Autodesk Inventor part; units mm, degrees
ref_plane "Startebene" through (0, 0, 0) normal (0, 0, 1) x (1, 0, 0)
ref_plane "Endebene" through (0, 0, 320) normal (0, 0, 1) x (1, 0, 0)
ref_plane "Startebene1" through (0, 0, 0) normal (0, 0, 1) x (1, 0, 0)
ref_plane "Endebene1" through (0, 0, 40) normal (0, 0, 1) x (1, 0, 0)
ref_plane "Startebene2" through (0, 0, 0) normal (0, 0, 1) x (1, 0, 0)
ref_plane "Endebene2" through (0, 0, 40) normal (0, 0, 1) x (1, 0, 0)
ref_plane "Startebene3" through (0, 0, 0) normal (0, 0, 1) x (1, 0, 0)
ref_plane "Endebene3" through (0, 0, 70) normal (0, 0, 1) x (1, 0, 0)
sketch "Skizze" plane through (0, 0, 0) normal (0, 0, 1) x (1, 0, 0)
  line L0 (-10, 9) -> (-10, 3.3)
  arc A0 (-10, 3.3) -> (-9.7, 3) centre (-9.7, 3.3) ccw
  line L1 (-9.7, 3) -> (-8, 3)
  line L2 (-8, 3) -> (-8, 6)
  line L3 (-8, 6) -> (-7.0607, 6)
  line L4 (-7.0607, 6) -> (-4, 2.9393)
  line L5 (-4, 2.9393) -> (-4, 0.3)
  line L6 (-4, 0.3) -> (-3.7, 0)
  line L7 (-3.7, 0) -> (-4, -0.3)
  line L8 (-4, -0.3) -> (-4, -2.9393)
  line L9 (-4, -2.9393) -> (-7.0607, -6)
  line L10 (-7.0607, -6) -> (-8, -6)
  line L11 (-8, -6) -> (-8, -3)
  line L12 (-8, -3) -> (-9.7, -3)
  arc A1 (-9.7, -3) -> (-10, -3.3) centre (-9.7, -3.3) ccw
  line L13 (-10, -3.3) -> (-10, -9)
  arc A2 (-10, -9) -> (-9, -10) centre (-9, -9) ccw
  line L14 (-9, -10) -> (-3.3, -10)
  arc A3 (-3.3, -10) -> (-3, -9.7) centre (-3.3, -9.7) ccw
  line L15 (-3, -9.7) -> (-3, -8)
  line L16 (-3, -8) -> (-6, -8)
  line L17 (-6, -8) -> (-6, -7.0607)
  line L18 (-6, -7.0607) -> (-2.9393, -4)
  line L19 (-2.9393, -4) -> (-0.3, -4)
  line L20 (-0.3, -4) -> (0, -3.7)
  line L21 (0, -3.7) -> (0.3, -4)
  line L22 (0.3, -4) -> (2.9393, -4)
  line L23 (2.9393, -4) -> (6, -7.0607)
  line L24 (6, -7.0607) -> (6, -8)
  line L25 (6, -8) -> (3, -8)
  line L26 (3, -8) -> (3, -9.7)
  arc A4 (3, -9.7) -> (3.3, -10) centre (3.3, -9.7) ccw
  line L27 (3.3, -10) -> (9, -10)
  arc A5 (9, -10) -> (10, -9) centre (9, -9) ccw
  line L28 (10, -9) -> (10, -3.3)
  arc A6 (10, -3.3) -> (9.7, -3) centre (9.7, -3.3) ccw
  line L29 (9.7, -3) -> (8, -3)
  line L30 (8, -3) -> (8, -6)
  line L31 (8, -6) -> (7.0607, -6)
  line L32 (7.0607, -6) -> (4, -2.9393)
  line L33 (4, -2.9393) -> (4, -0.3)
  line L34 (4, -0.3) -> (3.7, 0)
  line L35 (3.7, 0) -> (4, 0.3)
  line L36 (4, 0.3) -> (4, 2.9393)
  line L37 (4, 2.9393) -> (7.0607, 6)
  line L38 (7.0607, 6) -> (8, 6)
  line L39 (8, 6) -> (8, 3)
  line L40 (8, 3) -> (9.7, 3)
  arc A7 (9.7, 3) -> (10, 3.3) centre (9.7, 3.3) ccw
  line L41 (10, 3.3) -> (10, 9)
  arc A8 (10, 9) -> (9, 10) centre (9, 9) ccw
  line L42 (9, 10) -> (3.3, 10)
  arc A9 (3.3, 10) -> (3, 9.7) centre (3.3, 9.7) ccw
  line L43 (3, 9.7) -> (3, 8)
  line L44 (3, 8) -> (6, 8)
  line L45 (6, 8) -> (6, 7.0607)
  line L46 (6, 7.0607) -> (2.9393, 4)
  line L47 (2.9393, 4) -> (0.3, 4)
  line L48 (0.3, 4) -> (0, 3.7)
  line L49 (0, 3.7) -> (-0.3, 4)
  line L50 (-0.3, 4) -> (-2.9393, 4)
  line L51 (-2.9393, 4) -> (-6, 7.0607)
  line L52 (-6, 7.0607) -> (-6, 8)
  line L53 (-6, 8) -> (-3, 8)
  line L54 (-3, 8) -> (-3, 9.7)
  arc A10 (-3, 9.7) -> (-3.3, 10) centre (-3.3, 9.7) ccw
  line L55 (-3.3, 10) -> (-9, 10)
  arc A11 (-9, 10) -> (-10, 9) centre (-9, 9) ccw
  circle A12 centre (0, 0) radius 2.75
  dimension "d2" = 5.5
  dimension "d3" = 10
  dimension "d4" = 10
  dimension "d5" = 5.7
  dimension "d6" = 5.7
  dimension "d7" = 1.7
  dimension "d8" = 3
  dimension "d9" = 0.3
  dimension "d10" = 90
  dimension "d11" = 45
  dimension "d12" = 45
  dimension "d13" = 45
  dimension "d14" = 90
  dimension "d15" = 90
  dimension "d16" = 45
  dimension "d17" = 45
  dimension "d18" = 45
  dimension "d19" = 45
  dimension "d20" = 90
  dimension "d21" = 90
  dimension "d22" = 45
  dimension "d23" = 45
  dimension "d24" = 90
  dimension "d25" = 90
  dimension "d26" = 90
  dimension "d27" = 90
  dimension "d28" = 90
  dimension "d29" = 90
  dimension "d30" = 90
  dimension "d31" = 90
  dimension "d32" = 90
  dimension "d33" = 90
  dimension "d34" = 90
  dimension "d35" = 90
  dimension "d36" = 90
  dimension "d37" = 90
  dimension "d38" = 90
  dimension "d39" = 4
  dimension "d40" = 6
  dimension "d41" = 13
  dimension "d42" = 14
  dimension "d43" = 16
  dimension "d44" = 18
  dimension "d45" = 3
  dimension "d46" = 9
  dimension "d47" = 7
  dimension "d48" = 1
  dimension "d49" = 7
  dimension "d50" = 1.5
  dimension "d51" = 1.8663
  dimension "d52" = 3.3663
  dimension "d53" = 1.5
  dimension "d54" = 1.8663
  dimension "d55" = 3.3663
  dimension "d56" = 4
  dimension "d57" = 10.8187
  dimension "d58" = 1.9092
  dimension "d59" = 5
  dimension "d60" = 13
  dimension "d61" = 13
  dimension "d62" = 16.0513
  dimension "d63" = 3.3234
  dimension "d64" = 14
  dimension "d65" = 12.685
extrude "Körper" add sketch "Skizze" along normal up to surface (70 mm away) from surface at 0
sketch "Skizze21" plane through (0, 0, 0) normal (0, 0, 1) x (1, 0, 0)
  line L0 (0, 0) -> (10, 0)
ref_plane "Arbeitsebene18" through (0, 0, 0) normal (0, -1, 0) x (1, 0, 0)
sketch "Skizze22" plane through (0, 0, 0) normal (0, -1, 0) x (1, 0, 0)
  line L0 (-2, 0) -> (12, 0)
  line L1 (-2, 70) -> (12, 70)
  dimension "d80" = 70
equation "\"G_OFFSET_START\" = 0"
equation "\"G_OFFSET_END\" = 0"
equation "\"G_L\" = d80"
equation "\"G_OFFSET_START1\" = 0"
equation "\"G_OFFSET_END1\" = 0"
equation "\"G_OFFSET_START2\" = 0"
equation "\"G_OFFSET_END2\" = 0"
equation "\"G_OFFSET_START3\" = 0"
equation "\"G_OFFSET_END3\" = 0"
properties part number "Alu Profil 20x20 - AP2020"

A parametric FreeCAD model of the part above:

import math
import FreeCAD as App
import Part
import Sketcher

V = App.Vector

doc = App.newDocument("Part")
body = doc.addObject("PartDesign::Body", "Body")

# Sketch on XY plane
sketch1 = doc.addObject("Sketcher::SketchObject", "Sketch")
body.addObject(sketch1)
sketch1.AttachmentSupport = (doc.XY_Plane, [""])
sketch1.MapMode = "FlatFace"
sketch1.addGeometry([
    Part.ArcOfCircle(Part.Circle(V(-9, 9, 0), V(0, 0, 1), 1), math.radians(90), math.radians(180)),  # 0
    Part.LineSegment(V(-10, 9, 0), V(-10, 3.3, 0)),  # 1
    Part.ArcOfCircle(Part.Circle(V(-9.7, 3.3, 0), V(0, 0, 1), 0.3), math.radians(180), math.radians(270)),  # 2
    Part.LineSegment(V(-9.7, 3, 0), V(-8, 3, 0)),  # 3
    Part.LineSegment(V(-8, 3, 0), V(-8, 6, 0)),  # 4
    Part.LineSegment(V(-8, 6, 0), V(-7.06, 6, 0)),  # 5
    Part.LineSegment(V(-7.06, 6, 0), V(-4, 2.94, 0)),  # 6
    Part.LineSegment(V(-4, 2.94, 0), V(-4, 0.3, 0)),  # 7
    Part.LineSegment(V(-4, 0.3, 0), V(-3.7, 0, 0)),  # 8
    Part.LineSegment(V(-3.7, 0, 0), V(-4, -0.3, 0)),  # 9
    Part.LineSegment(V(-4, -0.3, 0), V(-4, -2.94, 0)),  # 10
    Part.LineSegment(V(-4, -2.94, 0), V(-7.06, -6, 0)),  # 11
    Part.LineSegment(V(-7.06, -6, 0), V(-8, -6, 0)),  # 12
    Part.LineSegment(V(-8, -6, 0), V(-8, -3, 0)),  # 13
    Part.LineSegment(V(-8, -3, 0), V(-9.7, -3, 0)),  # 14
    Part.ArcOfCircle(Part.Circle(V(-9.7, -3.3, 0), V(0, 0, 1), 0.3), math.radians(90), math.radians(180)),  # 15
    Part.LineSegment(V(-10, -3.3, 0), V(-10, -9, 0)),  # 16
    Part.ArcOfCircle(Part.Circle(V(-9, -9, 0), V(0, 0, 1), 1), math.radians(180), math.radians(270)),  # 17
    Part.LineSegment(V(-9, -10, 0), V(-3.3, -10, 0)),  # 18
    Part.ArcOfCircle(Part.Circle(V(-3.3, -9.7, 0), V(0, 0, 1), 0.3), math.radians(-90), math.radians(0)),  # 19
    Part.LineSegment(V(-3, -9.7, 0), V(-3, -8, 0)),  # 20
    Part.LineSegment(V(-3, -8, 0), V(-6, -8, 0)),  # 21
    Part.LineSegment(V(-6, -8, 0), V(-6, -7.06, 0)),  # 22
    Part.LineSegment(V(-6, -7.06, 0), V(-2.94, -4, 0)),  # 23
    Part.LineSegment(V(-2.94, -4, 0), V(-0.3, -4, 0)),  # 24
    Part.LineSegment(V(-0.3, -4, 0), V(0, -3.7, 0)),  # 25
    Part.LineSegment(V(0, -3.7, 0), V(0.3, -4, 0)),  # 26
    Part.LineSegment(V(0.3, -4, 0), V(2.94, -4, 0)),  # 27
    Part.LineSegment(V(2.94, -4, 0), V(6, -7.06, 0)),  # 28
    Part.LineSegment(V(6, -7.06, 0), V(6, -8, 0)),  # 29
    Part.LineSegment(V(6, -8, 0), V(3, -8, 0)),  # 30
    Part.LineSegment(V(3, -8, 0), V(3, -9.7, 0)),  # 31
    Part.ArcOfCircle(Part.Circle(V(3.3, -9.7, 0), V(0, 0, 1), 0.3), math.radians(180), math.radians(270)),  # 32
    Part.LineSegment(V(3.3, -10, 0), V(9, -10, 0)),  # 33
    Part.ArcOfCircle(Part.Circle(V(9, -9, 0), V(0, 0, 1), 1), math.radians(-90), math.radians(0)),  # 34
    Part.LineSegment(V(10, -9, 0), V(10, -3.3, 0)),  # 35
    Part.ArcOfCircle(Part.Circle(V(9.7, -3.3, 0), V(0, 0, 1), 0.3), math.radians(0), math.radians(90)),  # 36
    Part.LineSegment(V(9.7, -3, 0), V(8, -3, 0)),  # 37
    Part.LineSegment(V(8, -3, 0), V(8, -6, 0)),  # 38
    Part.LineSegment(V(8, -6, 0), V(7.06, -6, 0)),  # 39
    Part.LineSegment(V(7.06, -6, 0), V(4, -2.94, 0)),  # 40
    Part.LineSegment(V(4, -2.94, 0), V(4, -0.3, 0)),  # 41
    Part.LineSegment(V(4, -0.3, 0), V(3.7, 0, 0)),  # 42
    Part.LineSegment(V(3.7, 0, 0), V(4, 0.3, 0)),  # 43
    Part.LineSegment(V(4, 0.3, 0), V(4, 2.94, 0)),  # 44
    Part.LineSegment(V(4, 2.94, 0), V(7.06, 6, 0)),  # 45
    Part.LineSegment(V(7.06, 6, 0), V(8, 6, 0)),  # 46
    Part.LineSegment(V(8, 6, 0), V(8, 3, 0)),  # 47
    Part.LineSegment(V(8, 3, 0), V(9.7, 3, 0)),  # 48
    Part.ArcOfCircle(Part.Circle(V(9.7, 3.3, 0), V(0, 0, 1), 0.3), math.radians(-90), math.radians(0)),  # 49
    Part.LineSegment(V(10, 3.3, 0), V(10, 9, 0)),  # 50
    Part.ArcOfCircle(Part.Circle(V(9, 9, 0), V(0, 0, 1), 1), math.radians(0), math.radians(90)),  # 51
    Part.LineSegment(V(9, 10, 0), V(3.3, 10, 0)),  # 52
    Part.ArcOfCircle(Part.Circle(V(3.3, 9.7, 0), V(0, 0, 1), 0.3), math.radians(90), math.radians(180)),  # 53
    Part.LineSegment(V(3, 9.7, 0), V(3, 8, 0)),  # 54
    Part.LineSegment(V(3, 8, 0), V(6, 8, 0)),  # 55
    Part.LineSegment(V(6, 8, 0), V(6, 7.06, 0)),  # 56
    Part.LineSegment(V(6, 7.06, 0), V(2.94, 4, 0)),  # 57
    Part.LineSegment(V(2.94, 4, 0), V(0.3, 4, 0)),  # 58
    Part.LineSegment(V(0.3, 4, 0), V(0, 3.7, 0)),  # 59
    Part.LineSegment(V(0, 3.7, 0), V(-0.3, 4, 0)),  # 60
    Part.LineSegment(V(-0.3, 4, 0), V(-2.94, 4, 0)),  # 61
    Part.LineSegment(V(-2.94, 4, 0), V(-6, 7.06, 0)),  # 62
    Part.LineSegment(V(-6, 7.06, 0), V(-6, 8, 0)),  # 63
    Part.LineSegment(V(-6, 8, 0), V(-3, 8, 0)),  # 64
    Part.LineSegment(V(-3, 8, 0), V(-3, 9.7, 0)),  # 65
    Part.ArcOfCircle(Part.Circle(V(-3.3, 9.7, 0), V(0, 0, 1), 0.3), math.radians(0), math.radians(90)),  # 66
    Part.LineSegment(V(-3.3, 10, 0), V(-9, 10, 0)),  # 67
    Part.Circle(V(0, 0, 0), V(0, 0, 1), 2.75),  # 68
], False)
sketch1.addConstraint([
    Sketcher.Constraint("Tangent", 0, 2, 1, 1),
    Sketcher.Constraint("Tangent", 1, 2, 2, 1),
    Sketcher.Constraint("Tangent", 2, 2, 3, 1),
    Sketcher.Constraint("Coincident", 3, 2, 4, 1),
    Sketcher.Constraint("Coincident", 4, 2, 5, 1),
    Sketcher.Constraint("Coincident", 5, 2, 6, 1),
    Sketcher.Constraint("Coincident", 6, 2, 7, 1),
    Sketcher.Constraint("Coincident", 7, 2, 8, 1),
    Sketcher.Constraint("Coincident", 8, 2, 9, 1),
    Sketcher.Constraint("Coincident", 9, 2, 10, 1),
    Sketcher.Constraint("Coincident", 10, 2, 11, 1),
    Sketcher.Constraint("Coincident", 11, 2, 12, 1),
    Sketcher.Constraint("Coincident", 12, 2, 13, 1),
    Sketcher.Constraint("Coincident", 13, 2, 14, 1),
    Sketcher.Constraint("Tangent", 14, 2, 15, 1),
    Sketcher.Constraint("Tangent", 15, 2, 16, 1),
    Sketcher.Constraint("Tangent", 16, 2, 17, 1),
    Sketcher.Constraint("Tangent", 17, 2, 18, 1),
    Sketcher.Constraint("Tangent", 18, 2, 19, 1),
    Sketcher.Constraint("Tangent", 19, 2, 20, 1),
    Sketcher.Constraint("Coincident", 20, 2, 21, 1),
    Sketcher.Constraint("Coincident", 21, 2, 22, 1),
    Sketcher.Constraint("Coincident", 22, 2, 23, 1),
    Sketcher.Constraint("Coincident", 23, 2, 24, 1),
    Sketcher.Constraint("Coincident", 24, 2, 25, 1),
    Sketcher.Constraint("Coincident", 25, 2, 26, 1),
    Sketcher.Constraint("Coincident", 26, 2, 27, 1),
    Sketcher.Constraint("Coincident", 27, 2, 28, 1),
    Sketcher.Constraint("Coincident", 28, 2, 29, 1),
    Sketcher.Constraint("Coincident", 29, 2, 30, 1),
    Sketcher.Constraint("Coincident", 30, 2, 31, 1),
    Sketcher.Constraint("Tangent", 31, 2, 32, 1),
    Sketcher.Constraint("Tangent", 32, 2, 33, 1),
    Sketcher.Constraint("Tangent", 33, 2, 34, 1),
    Sketcher.Constraint("Tangent", 34, 2, 35, 1),
    Sketcher.Constraint("Tangent", 35, 2, 36, 1),
    Sketcher.Constraint("Tangent", 36, 2, 37, 1),
    Sketcher.Constraint("Coincident", 37, 2, 38, 1),
    Sketcher.Constraint("Coincident", 38, 2, 39, 1),
    Sketcher.Constraint("Coincident", 39, 2, 40, 1),
    Sketcher.Constraint("Coincident", 40, 2, 41, 1),
    Sketcher.Constraint("Coincident", 41, 2, 42, 1),
    Sketcher.Constraint("Coincident", 42, 2, 43, 1),
    Sketcher.Constraint("Coincident", 43, 2, 44, 1),
    Sketcher.Constraint("Coincident", 44, 2, 45, 1),
    Sketcher.Constraint("Coincident", 45, 2, 46, 1),
    Sketcher.Constraint("Coincident", 46, 2, 47, 1),
    Sketcher.Constraint("Coincident", 47, 2, 48, 1),
    Sketcher.Constraint("Tangent", 48, 2, 49, 1),
    Sketcher.Constraint("Tangent", 49, 2, 50, 1),
    Sketcher.Constraint("Tangent", 50, 2, 51, 1),
    Sketcher.Constraint("Tangent", 51, 2, 52, 1),
    Sketcher.Constraint("Tangent", 52, 2, 53, 1),
    Sketcher.Constraint("Tangent", 53, 2, 54, 1),
    Sketcher.Constraint("Coincident", 54, 2, 55, 1),
    Sketcher.Constraint("Coincident", 55, 2, 56, 1),
    Sketcher.Constraint("Coincident", 56, 2, 57, 1),
    Sketcher.Constraint("Coincident", 57, 2, 58, 1),
    Sketcher.Constraint("Coincident", 58, 2, 59, 1),
    Sketcher.Constraint("Coincident", 59, 2, 60, 1),
    Sketcher.Constraint("Coincident", 60, 2, 61, 1),
    Sketcher.Constraint("Coincident", 61, 2, 62, 1),
    Sketcher.Constraint("Coincident", 62, 2, 63, 1),
    Sketcher.Constraint("Coincident", 63, 2, 64, 1),
    Sketcher.Constraint("Coincident", 64, 2, 65, 1),
    Sketcher.Constraint("Tangent", 65, 2, 66, 1),
    Sketcher.Constraint("Tangent", 66, 2, 67, 1),
    Sketcher.Constraint("Tangent", 67, 2, 0, 1),
    Sketcher.Constraint("Vertical", 1),
    Sketcher.Constraint("Horizontal", 3),
    Sketcher.Constraint("Vertical", 4),
    Sketcher.Constraint("Horizontal", 5),
    Sketcher.Constraint("Vertical", 7),
    Sketcher.Constraint("Vertical", 10),
    Sketcher.Constraint("Horizontal", 12),
    Sketcher.Constraint("Vertical", 13),
    Sketcher.Constraint("Horizontal", 14),
    Sketcher.Constraint("Vertical", 16),
    Sketcher.Constraint("Horizontal", 18),
    Sketcher.Constraint("Vertical", 20),
    Sketcher.Constraint("Horizontal", 21),
    Sketcher.Constraint("Vertical", 22),
    Sketcher.Constraint("Horizontal", 24),
    Sketcher.Constraint("Horizontal", 27),
    Sketcher.Constraint("Vertical", 29),
    Sketcher.Constraint("Horizontal", 30),
    Sketcher.Constraint("Vertical", 31),
    Sketcher.Constraint("Horizontal", 33),
    Sketcher.Constraint("Vertical", 35),
    Sketcher.Constraint("Horizontal", 37),
    Sketcher.Constraint("Vertical", 38),
    Sketcher.Constraint("Horizontal", 39),
    Sketcher.Constraint("Vertical", 41),
    Sketcher.Constraint("Vertical", 44),
    Sketcher.Constraint("Horizontal", 46),
    Sketcher.Constraint("Vertical", 47),
    Sketcher.Constraint("Horizontal", 48),
    Sketcher.Constraint("Vertical", 50),
    Sketcher.Constraint("Horizontal", 52),
    Sketcher.Constraint("Vertical", 54),
    Sketcher.Constraint("Horizontal", 55),
    Sketcher.Constraint("Vertical", 56),
    Sketcher.Constraint("Horizontal", 58),
    Sketcher.Constraint("Horizontal", 61),
    Sketcher.Constraint("Vertical", 63),
    Sketcher.Constraint("Horizontal", 64),
    Sketcher.Constraint("Vertical", 65),
    Sketcher.Constraint("Horizontal", 67),
    Sketcher.Constraint("Coincident", 68, 3, -1, 1),
    Sketcher.Constraint("Equal", 2, 15),
    Sketcher.Constraint("Equal", 0, 17),
    Sketcher.Constraint("Equal", 15, 19),
    Sketcher.Constraint("Equal", 19, 32),
    Sketcher.Constraint("Equal", 17, 34),
    Sketcher.Constraint("Equal", 32, 36),
    Sketcher.Constraint("Equal", 36, 49),
    Sketcher.Constraint("Equal", 34, 51),
    Sketcher.Constraint("Equal", 49, 53),
    Sketcher.Constraint("Equal", 53, 66),
    Sketcher.Constraint("Symmetric", 0, 3, 34, 3, -1, 1),
    Sketcher.Constraint("Symmetric", 15, 3, 49, 3, -1, 1),
    Sketcher.Constraint("Symmetric", 19, 3, 53, 3, -1, 1),
    Sketcher.Constraint("Symmetric", 3, 2, 37, 2, -1, 1),
    Sketcher.Constraint("Symmetric", 5, 2, 39, 2, -1, 1),
    Sketcher.Constraint("Symmetric", 6, 2, 40, 2, -1, 1),
    Sketcher.Constraint("Symmetric", 8, 2, 42, 2, -1, 1),
    Sketcher.Constraint("Symmetric", 9, 2, 43, 2, -1, 1),
    Sketcher.Constraint("Symmetric", 11, 2, 45, 2, -1, 1),
    Sketcher.Constraint("Symmetric", 21, 2, 55, 2, -1, 1),
    Sketcher.Constraint("Symmetric", 23, 2, 57, 2, -1, 1),
    Sketcher.Constraint("Symmetric", 25, 2, 59, 2, -1, 1),
    Sketcher.Constraint("Symmetric", 26, 2, 60, 2, -1, 1),
    Sketcher.Constraint("Symmetric", 28, 2, 62, 2, -1, 1),
    Sketcher.Constraint("Symmetric", 30, 2, 64, 2, -1, 1),
    Sketcher.Constraint("Symmetric", 19, 3, 32, 3, -2),
    Sketcher.Constraint("Symmetric", 15, 3, 36, 3, -2),
    Sketcher.Constraint("Symmetric", 24, 2, 26, 2, -2),
    Sketcher.Constraint("Symmetric", 22, 2, 28, 2, -2),
    Sketcher.Constraint("Symmetric", 12, 2, 38, 2, -2),
    Sketcher.Constraint("Symmetric", 10, 2, 40, 2, -2),
    Sketcher.Constraint("PointOnObject", 8, 2, -1),
    Sketcher.Constraint("PointOnObject", 25, 2, -2),
    Sketcher.Constraint("Parallel", 6, 8),
    Sketcher.Constraint("Perpendicular", 8, 9),
    Sketcher.Constraint("Parallel", 9, 11),
    Sketcher.Constraint("Parallel", 11, 23),
    Sketcher.Constraint("Parallel", 23, 25),
    Sketcher.Constraint("Perpendicular", 25, 26),
    Sketcher.Constraint("Parallel", 26, 28),
    Sketcher.Constraint("Parallel", 40, 42),
    Sketcher.Constraint("Parallel", 43, 45),
    Sketcher.Constraint("Parallel", 45, 57),
    Sketcher.Constraint("Parallel", 57, 59),
    Sketcher.Constraint("Parallel", 60, 62),
    Sketcher.Constraint("Horizontal", 21, 2, 29, 2),
    Sketcher.Constraint("Vertical", 38, 2, 46, 2),
    Sketcher.Constraint("Equal", 67, 1),
    Sketcher.Constraint("Equal", 64, 4),
    Sketcher.Constraint("Equal", 61, 7),
    Sketcher.Constraint("Equal", 48, 20),
    Sketcher.Constraint("Equal", 46, 22),
    Sketcher.Constraint("Equal", 11, 23),
    Sketcher.Constraint("Equal", 9, 25),
    Sketcher.Constraint("Radius", 0, 1.0),
    Sketcher.Constraint("Diameter", 68, 5.5),
    Sketcher.Constraint("Radius", 2, 0.3),
    Sketcher.Constraint("DistanceX", 21, 2, 21, 1, 3.0),
    Sketcher.Constraint("DistanceX", 3, 1, 3, 2, 1.7),
    Sketcher.Constraint("DistanceX", 18, 1, 18, 2, 5.7),
    Sketcher.Constraint("DistanceX", 0, 3, -1, 1, 9.0),
    Sketcher.Constraint("DistanceX", 6, 2, -1, 1, 4.0),
    Sketcher.Constraint("DistanceY", -1, 1, 7, 2, 0.3),
    Sketcher.Constraint("DistanceX", 5, 1, 5, 2, 0.9393),
])
pad1 = doc.addObject("PartDesign::Pad", "Pad")
body.addObject(pad1)
pad1.Profile = sketch1
pad1.Length = 70

doc.recompute()
